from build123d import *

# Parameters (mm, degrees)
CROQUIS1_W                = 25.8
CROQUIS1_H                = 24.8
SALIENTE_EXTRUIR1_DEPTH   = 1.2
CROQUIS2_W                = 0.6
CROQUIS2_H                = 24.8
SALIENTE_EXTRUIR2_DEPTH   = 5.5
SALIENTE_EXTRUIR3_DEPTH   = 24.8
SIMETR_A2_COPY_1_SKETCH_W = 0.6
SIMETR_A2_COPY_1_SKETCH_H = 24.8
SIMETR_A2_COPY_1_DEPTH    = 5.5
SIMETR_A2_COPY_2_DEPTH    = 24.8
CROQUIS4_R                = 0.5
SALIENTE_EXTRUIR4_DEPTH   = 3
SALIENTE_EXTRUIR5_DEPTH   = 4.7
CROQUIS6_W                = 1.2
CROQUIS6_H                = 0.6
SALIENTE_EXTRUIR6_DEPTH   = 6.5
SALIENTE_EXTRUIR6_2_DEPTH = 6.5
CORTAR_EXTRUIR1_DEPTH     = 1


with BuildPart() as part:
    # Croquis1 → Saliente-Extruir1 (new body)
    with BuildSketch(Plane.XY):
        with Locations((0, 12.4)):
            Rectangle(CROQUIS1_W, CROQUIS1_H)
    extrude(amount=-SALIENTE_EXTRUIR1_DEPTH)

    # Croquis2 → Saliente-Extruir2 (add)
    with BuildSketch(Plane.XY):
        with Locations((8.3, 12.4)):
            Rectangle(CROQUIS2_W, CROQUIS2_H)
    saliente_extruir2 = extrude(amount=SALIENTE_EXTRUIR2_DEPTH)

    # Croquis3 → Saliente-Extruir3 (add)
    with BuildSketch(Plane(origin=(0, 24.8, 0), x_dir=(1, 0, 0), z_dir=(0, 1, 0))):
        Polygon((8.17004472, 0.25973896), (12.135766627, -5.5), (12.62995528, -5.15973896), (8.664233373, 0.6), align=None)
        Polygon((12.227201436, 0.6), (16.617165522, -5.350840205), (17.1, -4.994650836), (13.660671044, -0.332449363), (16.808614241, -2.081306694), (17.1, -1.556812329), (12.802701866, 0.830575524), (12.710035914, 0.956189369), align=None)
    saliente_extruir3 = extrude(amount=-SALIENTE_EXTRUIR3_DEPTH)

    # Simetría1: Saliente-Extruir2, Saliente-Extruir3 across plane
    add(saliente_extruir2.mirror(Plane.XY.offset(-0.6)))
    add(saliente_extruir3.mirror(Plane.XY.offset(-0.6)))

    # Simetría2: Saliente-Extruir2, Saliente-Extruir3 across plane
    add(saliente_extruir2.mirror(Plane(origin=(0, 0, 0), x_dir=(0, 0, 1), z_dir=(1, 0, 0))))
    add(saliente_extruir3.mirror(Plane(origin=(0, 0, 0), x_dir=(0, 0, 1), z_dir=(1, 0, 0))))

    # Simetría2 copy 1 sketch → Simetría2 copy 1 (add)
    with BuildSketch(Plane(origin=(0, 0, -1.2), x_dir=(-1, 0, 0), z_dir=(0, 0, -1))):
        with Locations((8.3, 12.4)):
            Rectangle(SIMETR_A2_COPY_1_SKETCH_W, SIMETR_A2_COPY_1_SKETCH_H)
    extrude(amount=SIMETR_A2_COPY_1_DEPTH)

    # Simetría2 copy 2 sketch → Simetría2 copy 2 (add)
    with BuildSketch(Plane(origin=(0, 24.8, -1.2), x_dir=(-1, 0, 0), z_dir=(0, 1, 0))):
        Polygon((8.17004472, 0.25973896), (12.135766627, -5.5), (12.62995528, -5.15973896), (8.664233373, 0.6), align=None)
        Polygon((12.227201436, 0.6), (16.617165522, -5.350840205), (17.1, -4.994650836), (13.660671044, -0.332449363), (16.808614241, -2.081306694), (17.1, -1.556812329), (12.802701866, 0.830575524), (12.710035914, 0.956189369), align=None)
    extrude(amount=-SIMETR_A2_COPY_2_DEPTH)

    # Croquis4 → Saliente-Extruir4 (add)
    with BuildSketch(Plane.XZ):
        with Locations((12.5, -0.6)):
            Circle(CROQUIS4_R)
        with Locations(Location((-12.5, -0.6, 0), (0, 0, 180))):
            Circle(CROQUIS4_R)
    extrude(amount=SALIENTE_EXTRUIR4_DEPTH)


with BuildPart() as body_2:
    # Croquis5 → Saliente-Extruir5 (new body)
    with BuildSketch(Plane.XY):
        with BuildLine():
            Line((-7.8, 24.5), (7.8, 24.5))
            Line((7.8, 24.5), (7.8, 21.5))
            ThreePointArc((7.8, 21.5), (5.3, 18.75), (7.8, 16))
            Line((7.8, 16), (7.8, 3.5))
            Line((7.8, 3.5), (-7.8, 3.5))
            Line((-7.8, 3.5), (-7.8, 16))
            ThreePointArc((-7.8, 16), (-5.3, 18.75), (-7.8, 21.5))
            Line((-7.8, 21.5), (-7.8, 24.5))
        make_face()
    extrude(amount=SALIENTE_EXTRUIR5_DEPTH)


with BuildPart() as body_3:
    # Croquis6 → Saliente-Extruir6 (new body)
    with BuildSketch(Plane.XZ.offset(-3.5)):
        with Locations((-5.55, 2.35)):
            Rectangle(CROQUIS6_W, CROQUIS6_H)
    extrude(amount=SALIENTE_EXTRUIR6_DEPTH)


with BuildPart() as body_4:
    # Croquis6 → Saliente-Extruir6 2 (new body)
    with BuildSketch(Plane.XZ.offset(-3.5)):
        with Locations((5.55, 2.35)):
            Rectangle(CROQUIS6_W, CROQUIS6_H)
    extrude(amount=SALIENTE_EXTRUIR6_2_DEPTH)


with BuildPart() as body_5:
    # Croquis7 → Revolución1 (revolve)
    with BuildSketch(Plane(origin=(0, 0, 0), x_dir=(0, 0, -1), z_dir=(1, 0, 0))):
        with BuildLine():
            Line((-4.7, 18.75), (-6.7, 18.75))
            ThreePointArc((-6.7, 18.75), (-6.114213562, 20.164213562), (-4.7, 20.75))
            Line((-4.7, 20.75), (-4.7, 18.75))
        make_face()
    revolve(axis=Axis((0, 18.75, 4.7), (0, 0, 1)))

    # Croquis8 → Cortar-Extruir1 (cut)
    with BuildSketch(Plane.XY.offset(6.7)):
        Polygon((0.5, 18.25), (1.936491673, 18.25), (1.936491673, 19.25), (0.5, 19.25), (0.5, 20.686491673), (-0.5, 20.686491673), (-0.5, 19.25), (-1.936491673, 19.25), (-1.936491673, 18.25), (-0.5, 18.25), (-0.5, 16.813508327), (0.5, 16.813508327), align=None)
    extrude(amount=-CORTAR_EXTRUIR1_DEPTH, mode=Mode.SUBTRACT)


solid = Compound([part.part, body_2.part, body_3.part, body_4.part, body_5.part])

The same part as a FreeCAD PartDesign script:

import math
import FreeCAD as App
import Part
import Sketcher
Q = App.Units.Quantity


def add_polygon(sketch, points):
    """Adds a closed chain of lines whose ends are joined by coincident constraints."""
    first, n = sketch.GeometryCount, len(points)
    for a, b in zip(points, points[1:] + points[:1]):
        sketch.addGeometry(Part.LineSegment(App.Vector(*a, 0), App.Vector(*b, 0)), False)
    for i in range(n):
        sketch.addConstraint(Sketcher.Constraint("Coincident", first + i, 2, first + (i + 1) % n, 1))

doc = App.newDocument("Part")
params = doc.addObject("Spreadsheet::Sheet", "Params")
for row, (alias, value) in enumerate([
    ("sketch1_width", "25.8 mm"),
    ("sketch1_height", "24.8 mm"),
    ("pad1_length", "1.2 mm"),
    ("sketch2_width", "0.6 mm"),
    ("sketch2_height", "24.8 mm"),
    ("pad2_length", "5.5 mm"),
    ("sketch3_length", "0.6 mm"),
    ("pad3_length", "24.8 mm"),
    ("sketch4_width", "0.6 mm"),
    ("sketch4_height", "24.8 mm"),
    ("pad4_length", "5.5 mm"),
    ("sketch5_length", "0.6 mm"),
    ("pad5_length", "24.8 mm"),
    ("sketch6_diameter", "1 mm"),
    ("pad6_length", "3 mm"),
    ("sketch7_height", "3 mm"),
    ("sketch7_width", "15.6 mm"),
    ("sketch7_height2", "12.5 mm"),
    ("pad7_length", "4.7 mm"),
    ("sketch8_width", "1.2 mm"),
    ("sketch8_height", "0.6 mm"),
    ("pad8_length", "6.5 mm"),
    ("sketch9_width", "1.2 mm"),
    ("sketch9_height", "0.6 mm"),
    ("pad9_length", "6.5 mm"),
    ("sketch10_radius", "2 mm"),
    ("revolution_angle", "360 deg"),
    ("sketch11_width", "1 mm"),
    ("pocket1_length", "1 mm"),
], start=1):
    params.set(f"A{row}", alias)
    params.set(f"B{row}", "=" + value)
    params.setAlias(f"B{row}", alias)

body = doc.addObject("PartDesign::Body", "Body")

# Sketch on XY plane
sketch1 = body.newObject("Sketcher::SketchObject", "Sketch")
sketch1.AttachmentSupport = (doc.getObject("XY_Plane"), [""])
sketch1.MapMode = "FlatFace"
add_polygon(sketch1, [(-12.9, 24.8), (-12.9, 0), (12.9, 0), (12.9, 24.8)])  # lines 0-3
sketch1.addConstraint([
    Sketcher.Constraint("Vertical", 0),
    Sketcher.Constraint("Horizontal", 1),
    Sketcher.Constraint("Vertical", 2),
    Sketcher.Constraint("Horizontal", 3),
    Sketcher.Constraint("Symmetric", 0, 2, 1, 2, -1, 1),
    Sketcher.Constraint("DistanceX", 1, 1, 1, 2, Q("25.8 mm")),
    Sketcher.Constraint("DistanceY", 0, 2, 0, 1, Q("24.8 mm")),
])
sketch1.setExpression("Constraints[9]", "Params.sketch1_width")
sketch1.setExpression("Constraints[10]", "Params.sketch1_height")
pad1 = body.newObject("PartDesign::Pad", "Pad")
pad1.Profile = sketch1
pad1.setExpression("Length", "Params.pad1_length")
pad1.Reversed = True

# Sketch on XY plane
sketch2 = body.newObject("Sketcher::SketchObject", "Sketch001")
sketch2.AttachmentSupport = (doc.getObject("XY_Plane"), [""])
sketch2.MapMode = "FlatFace"
add_polygon(sketch2, [(8, 24.8), (8, 0), (8.6, 0), (8.6, 24.8)])  # lines 0-3
sketch2.addConstraint([
    Sketcher.Constraint("Vertical", 0),
    Sketcher.Constraint("Horizontal", 1),
    Sketcher.Constraint("Vertical", 2),
    Sketcher.Constraint("Horizontal", 3),
    Sketcher.Constraint("PointOnObject", 0, 2, -1),
    Sketcher.Constraint("DistanceX", 1, 1, 1, 2, Q("0.6 mm")),
    Sketcher.Constraint("DistanceY", 0, 2, 0, 1, Q("24.8 mm")),
    Sketcher.Constraint("DistanceX", -1, 1, 0, 2, Q("8 mm")),
])
sketch2.setExpression("Constraints[9]", "Params.sketch2_width")
sketch2.setExpression("Constraints[10]", "Params.sketch2_height")
pad2 = body.newObject("PartDesign::Pad", "Pad001")
pad2.Profile = sketch2
pad2.setExpression("Length", "Params.pad2_length")

# Sketch on XZ plane
sketch3 = body.newObject("Sketcher::SketchObject", "Sketch002")
sketch3.AttachmentSupport = (doc.getObject("XZ_Plane"), [""])
sketch3.MapMode = "FlatFace"
sketch3.AttachmentOffset = App.Placement(App.Vector(0, 0, -24.8), App.Rotation())
add_polygon(sketch3, [(8.170045, -0.259739), (12.135767, 5.5), (12.629955, 5.159739), (8.664233, -0.6)])  # lines 0-3
add_polygon(sketch3, [(12.227201, -0.6), (16.617166, 5.35084), (17.1, 4.994651), (13.660671, 0.332449), (16.808614, 2.081307), (17.1, 1.556812), (12.802702, -0.830576), (12.710036, -0.956189)])  # lines 4-11
sketch3.addConstraint([
    Sketcher.Constraint("Perpendicular", 0, 1),
    Sketcher.Constraint("Perpendicular", 1, 2),
    Sketcher.Constraint("Perpendicular", 2, 3),
    Sketcher.Constraint("Perpendicular", 4, 5),
    Sketcher.Constraint("Perpendicular", 5, 6),
    Sketcher.Constraint("Perpendicular", 7, 8),
    Sketcher.Constraint("Perpendicular", 8, 9),
    Sketcher.Constraint("Parallel", 6, 10),
    Sketcher.Constraint("Perpendicular", 10, 11),
    Sketcher.Constraint("Horizontal", 2, 2, 11, 2),
    Sketcher.Constraint("Vertical", 5, 2, 8, 2),
    Sketcher.Constraint("Equal", 3, 5),
    Sketcher.Constraint("Equal", 5, 8),
    Sketcher.Constraint("Equal", 8, 11),
    Sketcher.Constraint("Distance", 1, Q("0.6 mm")),
    Sketcher.Constraint("DistanceY", -1, 1, 0, 2, Q("5.5 mm")),
    Sketcher.Constraint("DistanceY", 2, 2, -1, 1, Q("0.6 mm")),
    Sketcher.Constraint("DistanceX", -1, 1, 5, 2, Q("17.1 mm")),
    Sketcher.Constraint("DistanceY", 10, 2, 8, 2, Q("2.513002 mm")),
    Sketcher.Constraint("DistanceX", -1, 1, 9, 2, Q("12.802702 mm")),
    Sketcher.Constraint("DistanceX", -1, 1, 11, 2, Q("12.227201 mm")),
    Sketcher.Constraint("DistanceY", 1, 2, 4, 2, Q("0.191101 mm")),
    Sketcher.Constraint("DistanceX", 0, 2, 4, 2, Q("4.481399 mm")),
    Sketcher.Constraint("DistanceY", 6, 2, 5, 2, Q("4.662201 mm")),
])
sketch3.setExpression("Constraints[26]", "Params.sketch3_length")
pad3 = body.newObject("PartDesign::Pad", "Pad002")
pad3.Profile = sketch3
pad3.setExpression("Length", "Params.pad3_length")
doc.recompute()

datumplane = body.newObject("PartDesign::Plane", "DatumPlane")
datumplane.AttachmentSupport = (doc.getObject("XY_Plane"), [""])
datumplane.MapMode = "FlatFace"
datumplane.AttachmentOffset = App.Placement(App.Vector(0, 0, -0.6), App.Rotation())
mirrored = body.newObject("PartDesign::Mirrored", "Mirrored")
mirrored.Originals = [pad2, pad3]
mirrored.MirrorPlane = (datumplane, [""])
body.Tip = mirrored
doc.recompute()

mirrored2 = body.newObject("PartDesign::Mirrored", "Mirrored001")
mirrored2.Originals = [pad2, pad3]
mirrored2.MirrorPlane = (doc.getObject("YZ_Plane"), [""])
body.Tip = mirrored2

# Sketch on XY plane
sketch4 = body.newObject("Sketcher::SketchObject", "Sketch003")
sketch4.AttachmentSupport = (doc.getObject("XY_Plane"), [""])
sketch4.MapMode = "FlatFace"
sketch4.AttachmentOffset = App.Placement(App.Vector(0, 0, -1.2), App.Rotation())
add_polygon(sketch4, [(-8, 24.8), (-8, 0), (-8.6, 0), (-8.6, 24.8)])  # lines 0-3
sketch4.addConstraint([
    Sketcher.Constraint("Vertical", 0),
    Sketcher.Constraint("Horizontal", 1),
    Sketcher.Constraint("Vertical", 2),
    Sketcher.Constraint("Horizontal", 3),
    Sketcher.Constraint("PointOnObject", 0, 2, -1),
    Sketcher.Constraint("DistanceX", 1, 2, 1, 1, Q("0.6 mm")),
    Sketcher.Constraint("DistanceY", 0, 2, 0, 1, Q("24.8 mm")),
    Sketcher.Constraint("DistanceX", 0, 2, -1, 1, Q("8 mm")),
])
sketch4.setExpression("Constraints[9]", "Params.sketch4_width")
sketch4.setExpression("Constraints[10]", "Params.sketch4_height")
pad4 = body.newObject("PartDesign::Pad", "Pad003")
pad4.Profile = sketch4
pad4.setExpression("Length", "Params.pad4_length")
pad4.Reversed = True

# Sketch on XZ plane
sketch5 = body.newObject("Sketcher::SketchObject", "Sketch004")
sketch5.AttachmentSupport = (doc.getObject("XZ_Plane"), [""])
sketch5.MapMode = "FlatFace"
sketch5.AttachmentOffset = App.Placement(App.Vector(0, 0, -24.8), App.Rotation())
add_polygon(sketch5, [(-8.170045, -0.940261), (-12.135767, -6.7), (-12.629955, -6.359739), (-8.664233, -0.6)])  # lines 0-3
add_polygon(sketch5, [(-12.227201, -0.6), (-16.617166, -6.55084), (-17.1, -6.194651), (-13.660671, -1.532449), (-16.808614, -3.281307), (-17.1, -2.756812), (-12.802702, -0.369424), (-12.710036, -0.243811)])  # lines 4-11
sketch5.addConstraint([
    Sketcher.Constraint("Perpendicular", 0, 1),
    Sketcher.Constraint("Perpendicular", 1, 2),
    Sketcher.Constraint("Perpendicular", 2, 3),
    Sketcher.Constraint("Perpendicular", 4, 5),
    Sketcher.Constraint("Perpendicular", 5, 6),
    Sketcher.Constraint("Perpendicular", 7, 8),
    Sketcher.Constraint("Perpendicular", 8, 9),
    Sketcher.Constraint("Parallel", 6, 10),
    Sketcher.Constraint("Perpendicular", 10, 11),
    Sketcher.Constraint("Horizontal", 2, 2, 11, 2),
    Sketcher.Constraint("Vertical", 5, 2, 8, 2),
    Sketcher.Constraint("Equal", 3, 5),
    Sketcher.Constraint("Equal", 5, 8),
    Sketcher.Constraint("Equal", 8, 11),
    Sketcher.Constraint("Distance", 1, Q("0.6 mm")),
    Sketcher.Constraint("DistanceY", 0, 2, -1, 1, Q("6.7 mm")),
    Sketcher.Constraint("DistanceY", 2, 2, -1, 1, Q("0.6 mm")),
    Sketcher.Constraint("DistanceX", 5, 2, -1, 1, Q("17.1 mm")),
    Sketcher.Constraint("DistanceY", 8, 2, 10, 2, Q("2.513002 mm")),
    Sketcher.Constraint("DistanceX", 9, 2, -1, 1, Q("12.802702 mm")),
    Sketcher.Constraint("DistanceX", 11, 2, -1, 1, Q("12.227201 mm")),
    Sketcher.Constraint("DistanceY", 4, 2, 1, 2, Q("0.191101 mm")),
    Sketcher.Constraint("DistanceX", 4, 2, 0, 2, Q("4.481399 mm")),
    Sketcher.Constraint("DistanceY", 5, 2, 6, 2, Q("4.662201 mm")),
])
sketch5.setExpression("Constraints[26]", "Params.sketch5_length")
pad5 = body.newObject("PartDesign::Pad", "Pad004")
pad5.Profile = sketch5
pad5.setExpression("Length", "Params.pad5_length")

# Sketch on XZ plane
sketch6 = body.newObject("Sketcher::SketchObject", "Sketch005")
sketch6.AttachmentSupport = (doc.getObject("XZ_Plane"), [""])
sketch6.MapMode = "FlatFace"
sketch6.addGeometry([
    Part.Circle(App.Vector(12.5, -0.6, 0), App.Vector(0, 0, 1), 0.5),
    Part.Circle(App.Vector(-12.5, -0.6, 0), App.Vector(0, 0, 1), 0.5),
], False)
sketch6.addConstraint([
    Sketcher.Constraint("Equal", 0, 1),
    Sketcher.Constraint("Symmetric", 0, 3, 1, 3, -2),
    Sketcher.Constraint("Diameter", 0, Q("1 mm")),
    Sketcher.Constraint("DistanceX", 1, 3, 0, 3, Q("25 mm")),
    Sketcher.Constraint("DistanceY", 0, 3, -1, 1, Q("0.6 mm")),
])
sketch6.setExpression("Constraints[2]", "Params.sketch6_diameter")
pad6 = body.newObject("PartDesign::Pad", "Pad005")
pad6.Profile = sketch6
pad6.setExpression("Length", "Params.pad6_length")
body2 = doc.addObject("PartDesign::Body", "Body001")

# Sketch on XY plane
sketch7 = body2.newObject("Sketcher::SketchObject", "Sketch006")
sketch7.AttachmentSupport = (doc.getObject("XY_Plane001"), [""])
sketch7.MapMode = "FlatFace"
sketch7.addGeometry([
    Part.LineSegment(App.Vector(7.8, 24.5, 0), App.Vector(-7.8, 24.5, 0)),  # 0
    Part.LineSegment(App.Vector(-7.8, 24.5, 0), App.Vector(-7.8, 21.5, 0)),  # 1
    Part.ArcOfCircle(Part.Circle(App.Vector(-8.0625, 18.75, 0), App.Vector(0, 0, 1), 2.7625), math.radians(-84.547378), math.radians(84.547378)),  # 2
    Part.LineSegment(App.Vector(-7.8, 16, 0), App.Vector(-7.8, 3.5, 0)),  # 3
    Part.LineSegment(App.Vector(-7.8, 3.5, 0), App.Vector(7.8, 3.5, 0)),  # 4
    Part.LineSegment(App.Vector(7.8, 3.5, 0), App.Vector(7.8, 16, 0)),  # 5
    Part.ArcOfCircle(Part.Circle(App.Vector(8.0625, 18.75, 0), App.Vector(0, 0, 1), 2.7625), math.radians(95.452622), math.radians(264.547378)),  # 6
    Part.LineSegment(App.Vector(7.8, 21.5, 0), App.Vector(7.8, 24.5, 0)),  # 7
], False)
sketch7.addConstraint([
    Sketcher.Constraint("Coincident", 0, 2, 1, 1),
    Sketcher.Constraint("Coincident", 1, 2, 2, 2),
    Sketcher.Constraint("Coincident", 2, 1, 3, 1),
    Sketcher.Constraint("Coincident", 3, 2, 4, 1),
    Sketcher.Constraint("Coincident", 4, 2, 5, 1),
    Sketcher.Constraint("Coincident", 5, 2, 6, 2),
    Sketcher.Constraint("Coincident", 6, 1, 7, 1),
    Sketcher.Constraint("Coincident", 7, 2, 0, 1),
    Sketcher.Constraint("Horizontal", 0),
    Sketcher.Constraint("Vertical", 1),
    Sketcher.Constraint("Vertical", 3),
    Sketcher.Constraint("Horizontal", 4),
    Sketcher.Constraint("Vertical", 5),
    Sketcher.Constraint("Vertical", 7),
    Sketcher.Constraint("Equal", 2, 6),
    Sketcher.Constraint("Symmetric", 2, 3, 6, 3, -2),
    Sketcher.Constraint("Horizontal", 2, 1, 5, 2),
    Sketcher.Constraint("Horizontal", 1, 2, 6, 1),
    Sketcher.Constraint("Vertical", 1, 2, 2, 1),
    Sketcher.Constraint("DistanceY", 1, 2, 1, 1, Q("3 mm")),
    Sketcher.Constraint("DistanceX", 0, 2, 0, 1, Q("15.6 mm")),
    Sketcher.Constraint("DistanceY", 3, 2, 3, 1, Q("12.5 mm")),
    Sketcher.Constraint("DistanceY", -1, 1, 2, 1, Q("16 mm")),
    Sketcher.Constraint("DistanceY", 3, 2, 1, 2, Q("18 mm")),
    Sketcher.Constraint("Radius", 2, Q("2.7625 mm")),
])
sketch7.setExpression("Constraints[19]", "Params.sketch7_height")
sketch7.setExpression("Constraints[20]", "Params.sketch7_width")
sketch7.setExpression("Constraints[21]", "Params.sketch7_height2")
pad7 = body2.newObject("PartDesign::Pad", "Pad006")
pad7.Profile = sketch7
pad7.setExpression("Length", "Params.pad7_length")
body3 = doc.addObject("PartDesign::Body", "Body002")

# Sketch on XZ plane
sketch8 = body3.newObject("Sketcher::SketchObject", "Sketch007")
sketch8.AttachmentSupport = (doc.getObject("XZ_Plane002"), [""])
sketch8.MapMode = "FlatFace"
sketch8.AttachmentOffset = App.Placement(App.Vector(0, 0, -3.5), App.Rotation())
add_polygon(sketch8, [(-6.15, 2.65), (-6.15, 2.05), (-4.95, 2.05), (-4.95, 2.65)])  # lines 0-3
sketch8.addConstraint([
    Sketcher.Constraint("Vertical", 0),
    Sketcher.Constraint("Horizontal", 1),
    Sketcher.Constraint("Vertical", 2),
    Sketcher.Constraint("Horizontal", 3),
    Sketcher.Constraint("DistanceX", 1, 1, 1, 2, Q("1.2 mm")),
    Sketcher.Constraint("DistanceY", 0, 2, 0, 1, Q("0.6 mm")),
    Sketcher.Constraint("DistanceX", 0, 2, -1, 1, Q("6.15 mm")),
    Sketcher.Constraint("DistanceY", -1, 1, 0, 2, Q("2.05 mm")),
])
sketch8.setExpression("Constraints[8]", "Params.sketch8_width")
sketch8.setExpression("Constraints[9]", "Params.sketch8_height")
pad8 = body3.newObject("PartDesign::Pad", "Pad007")
pad8.Profile = sketch8
pad8.setExpression("Length", "Params.pad8_length")
body4 = doc.addObject("PartDesign::Body", "Body003")

# Sketch on XZ plane
sketch9 = body4.newObject("Sketcher::SketchObject", "Sketch008")
sketch9.AttachmentSupport = (doc.getObject("XZ_Plane003"), [""])
sketch9.MapMode = "FlatFace"
sketch9.AttachmentOffset = App.Placement(App.Vector(0, 0, -3.5), App.Rotation())
add_polygon(sketch9, [(4.95, 2.65), (4.95, 2.05), (6.15, 2.05), (6.15, 2.65)])  # lines 0-3
sketch9.addConstraint([
    Sketcher.Constraint("Vertical", 0),
    Sketcher.Constraint("Horizontal", 1),
    Sketcher.Constraint("Vertical", 2),
    Sketcher.Constraint("Horizontal", 3),
    Sketcher.Constraint("DistanceX", 1, 1, 1, 2, Q("1.2 mm")),
    Sketcher.Constraint("DistanceY", 0, 2, 0, 1, Q("0.6 mm")),
    Sketcher.Constraint("DistanceX", -1, 1, 0, 2, Q("4.95 mm")),
    Sketcher.Constraint("DistanceY", -1, 1, 0, 2, Q("2.05 mm")),
])
sketch9.setExpression("Constraints[8]", "Params.sketch9_width")
sketch9.setExpression("Constraints[9]", "Params.sketch9_height")
pad9 = body4.newObject("PartDesign::Pad", "Pad008")
pad9.Profile = sketch9
pad9.setExpression("Length", "Params.pad9_length")
body5 = doc.addObject("PartDesign::Body", "Body004")

# Sketch on YZ plane
sketch10 = body5.newObject("Sketcher::SketchObject", "Sketch009")
sketch10.AttachmentSupport = (doc.getObject("YZ_Plane004"), [""])
sketch10.MapMode = "FlatFace"
sketch10.addGeometry([
    Part.LineSegment(App.Vector(18.75, 6.7, 0), App.Vector(18.75, 4.7, 0)),
    Part.LineSegment(App.Vector(18.75, 4.7, 0), App.Vector(20.75, 4.7, 0)),
    Part.ArcOfCircle(Part.Circle(App.Vector(18.75, 4.7, 0), App.Vector(0, 0, 1), 2), math.radians(0), math.radians(90)),
], False)
sketch10.addGeometry(Part.LineSegment(App.Vector(18.75, 4.7, 0), App.Vector(18.75, 6.7, 0)), True)  # axis
sketch10.addConstraint([
    Sketcher.Constraint("Coincident", 0, 2, 1, 1),
    Sketcher.Constraint("Coincident", 1, 2, 2, 1),
    Sketcher.Constraint("Coincident", 2, 2, 0, 1),
    Sketcher.Constraint("Vertical", 0),
    Sketcher.Constraint("Horizontal", 1),
    Sketcher.Constraint("Vertical", 3),
    Sketcher.Constraint("Coincident", 0, 2, 2, 3),
    Sketcher.Constraint("Coincident", 3, 1, 2, 3),
    Sketcher.Constraint("Equal", 0, 3),
    Sketcher.Constraint("Radius", 2, Q("2 mm")),
    Sketcher.Constraint("DistanceY", -1, 1, 2, 3, Q("4.7 mm")),
    Sketcher.Constraint("DistanceX", -1, 1, 2, 3, Q("18.75 mm")),
])
sketch10.setExpression("Constraints[9]", "Params.sketch10_radius")
revolution = body5.newObject("PartDesign::Revolution", "Revolution")
revolution.Profile = sketch10
revolution.ReferenceAxis = (sketch10, ["Axis0"])
revolution.setExpression("Angle", "Params.revolution_angle")

# Sketch on XY plane
sketch11 = body5.newObject("Sketcher::SketchObject", "Sketch010")
sketch11.AttachmentSupport = (doc.getObject("XY_Plane004"), [""])
sketch11.MapMode = "FlatFace"
sketch11.AttachmentOffset = App.Placement(App.Vector(0, 0, 6.7), App.Rotation())
add_polygon(sketch11, [(0.5, 18.25), (1.936492, 18.25), (1.936492, 19.25), (0.5, 19.25), (0.5, 20.686492), (-0.5, 20.686492), (-0.5, 19.25), (-1.936492, 19.25), (-1.936492, 18.25), (-0.5, 18.25), (-0.5, 16.813508), (0.5, 16.813508)])  # lines 0-11
sketch11.addConstraint([
    Sketcher.Constraint("Horizontal", 0),
    Sketcher.Constraint("Vertical", 1),
    Sketcher.Constraint("Horizontal", 2),
    Sketcher.Constraint("Vertical", 3),
    Sketcher.Constraint("Horizontal", 4),
    Sketcher.Constraint("Vertical", 5),
    Sketcher.Constraint("Horizontal", 6),
    Sketcher.Constraint("Vertical", 7),
    Sketcher.Constraint("Horizontal", 8),
    Sketcher.Constraint("Vertical", 9),
    Sketcher.Constraint("Horizontal", 10),
    Sketcher.Constraint("Vertical", 11),
    Sketcher.Constraint("Symmetric", 2, 2, 5, 2, -2),
    Sketcher.Constraint("Symmetric", 0, 2, 7, 2, -2),
    Sketcher.Constraint("Vertical", 5, 2, 8, 2),
    Sketcher.Constraint("Vertical", 3, 2, 10, 2),
    Sketcher.Constraint("Equal", 10, 1),
    Sketcher.Constraint("Equal", 8, 3),
    Sketcher.Constraint("Equal", 5, 9),
    Sketcher.Constraint("DistanceX", 4, 2, 4, 1, Q("1 mm")),
    Sketcher.Constraint("DistanceY", -1, 1, 0, 2, Q("18.25 mm")),
    Sketcher.Constraint("DistanceX", 0, 1, 0, 2, Q("1.436492 mm")),
])
sketch11.setExpression("Constraints[31]", "Params.sketch11_width")
pocket1 = body5.newObject("PartDesign::Pocket", "Pocket")
pocket1.Profile = sketch11
pocket1.setExpression("Length", "Params.pocket1_length")

doc.recompute()
